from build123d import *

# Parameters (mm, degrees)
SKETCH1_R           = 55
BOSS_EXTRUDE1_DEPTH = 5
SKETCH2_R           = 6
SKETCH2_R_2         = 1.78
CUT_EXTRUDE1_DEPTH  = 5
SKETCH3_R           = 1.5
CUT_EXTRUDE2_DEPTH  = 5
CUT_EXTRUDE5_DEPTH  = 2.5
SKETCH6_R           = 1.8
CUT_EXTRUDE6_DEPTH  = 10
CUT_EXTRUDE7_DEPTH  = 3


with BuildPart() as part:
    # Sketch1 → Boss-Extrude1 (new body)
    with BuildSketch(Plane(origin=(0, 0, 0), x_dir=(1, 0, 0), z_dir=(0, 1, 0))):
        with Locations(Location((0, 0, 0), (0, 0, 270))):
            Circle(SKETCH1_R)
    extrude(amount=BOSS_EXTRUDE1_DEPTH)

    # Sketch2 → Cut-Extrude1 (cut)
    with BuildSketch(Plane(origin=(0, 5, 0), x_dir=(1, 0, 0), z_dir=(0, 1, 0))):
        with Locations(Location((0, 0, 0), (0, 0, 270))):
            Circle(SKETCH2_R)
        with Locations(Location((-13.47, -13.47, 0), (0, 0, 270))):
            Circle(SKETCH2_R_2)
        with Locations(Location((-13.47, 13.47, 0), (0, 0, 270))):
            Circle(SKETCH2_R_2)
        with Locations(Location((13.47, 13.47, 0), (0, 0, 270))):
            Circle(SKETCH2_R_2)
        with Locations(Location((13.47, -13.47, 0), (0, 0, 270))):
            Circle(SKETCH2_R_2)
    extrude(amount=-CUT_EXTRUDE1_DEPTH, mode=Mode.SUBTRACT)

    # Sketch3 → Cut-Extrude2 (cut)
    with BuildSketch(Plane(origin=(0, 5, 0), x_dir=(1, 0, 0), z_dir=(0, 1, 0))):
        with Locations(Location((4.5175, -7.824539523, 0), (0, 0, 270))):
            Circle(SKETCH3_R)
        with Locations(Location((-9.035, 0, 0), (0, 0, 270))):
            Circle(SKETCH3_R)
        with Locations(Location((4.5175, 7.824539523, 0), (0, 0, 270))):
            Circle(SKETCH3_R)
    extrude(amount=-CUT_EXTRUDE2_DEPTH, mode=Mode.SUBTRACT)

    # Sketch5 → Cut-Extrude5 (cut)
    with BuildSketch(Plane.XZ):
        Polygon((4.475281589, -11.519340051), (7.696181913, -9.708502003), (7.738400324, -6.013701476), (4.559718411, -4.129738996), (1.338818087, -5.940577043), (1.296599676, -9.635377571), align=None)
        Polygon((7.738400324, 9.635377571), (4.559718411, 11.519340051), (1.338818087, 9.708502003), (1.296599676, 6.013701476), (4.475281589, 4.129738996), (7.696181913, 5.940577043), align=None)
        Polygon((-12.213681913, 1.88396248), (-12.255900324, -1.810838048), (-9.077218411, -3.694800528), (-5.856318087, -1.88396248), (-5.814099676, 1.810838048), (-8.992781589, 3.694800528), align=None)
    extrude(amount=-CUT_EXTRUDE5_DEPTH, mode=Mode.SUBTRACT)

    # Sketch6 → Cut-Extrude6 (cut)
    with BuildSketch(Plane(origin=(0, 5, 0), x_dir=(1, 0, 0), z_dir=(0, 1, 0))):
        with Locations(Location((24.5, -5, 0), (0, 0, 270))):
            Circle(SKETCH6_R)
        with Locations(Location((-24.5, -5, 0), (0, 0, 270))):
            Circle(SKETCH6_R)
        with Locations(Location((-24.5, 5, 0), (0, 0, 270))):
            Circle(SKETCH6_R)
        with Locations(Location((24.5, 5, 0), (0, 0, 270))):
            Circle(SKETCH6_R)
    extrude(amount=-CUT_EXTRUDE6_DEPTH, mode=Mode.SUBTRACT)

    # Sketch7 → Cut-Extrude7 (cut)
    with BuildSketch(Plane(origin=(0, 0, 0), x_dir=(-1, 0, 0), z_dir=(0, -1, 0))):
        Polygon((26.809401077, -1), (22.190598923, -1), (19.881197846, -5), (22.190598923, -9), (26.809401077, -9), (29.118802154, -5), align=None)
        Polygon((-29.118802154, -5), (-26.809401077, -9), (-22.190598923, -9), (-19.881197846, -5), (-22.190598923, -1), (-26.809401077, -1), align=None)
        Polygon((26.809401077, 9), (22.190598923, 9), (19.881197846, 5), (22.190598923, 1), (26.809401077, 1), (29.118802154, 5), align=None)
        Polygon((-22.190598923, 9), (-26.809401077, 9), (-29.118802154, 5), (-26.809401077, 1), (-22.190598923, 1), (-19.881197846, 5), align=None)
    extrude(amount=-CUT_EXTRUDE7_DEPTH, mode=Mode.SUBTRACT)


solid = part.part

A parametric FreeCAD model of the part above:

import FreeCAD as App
import Part
import Sketcher
from FreeCAD import Vector
Q = App.Units.Quantity

doc = App.newDocument("Part")
body = doc.addObject("PartDesign::Body", "Body")

# Sketch on XZ plane
sketch1 = body.newObject("Sketcher::SketchObject", "Sketch")
sketch1.AttachmentSupport = (doc.getObject("XZ_Plane"), [""])
sketch1.MapMode = "FlatFace"
sketch1.addGeometry(Part.Circle(Vector(0, 0, 0), Vector(0, 0, 1), 55), False)
sketch1.addConstraint(Sketcher.Constraint("Coincident", 0, 3, -1, 1))
sketch1.addConstraint(Sketcher.Constraint("Diameter", 0, Q("110 mm")))
pad1 = body.newObject("PartDesign::Pad", "Pad")
pad1.Profile = sketch1
pad1.Length = 5
pad1.Reversed = True

# Sketch on XZ plane
sketch2 = body.newObject("Sketcher::SketchObject", "Sketch001")
sketch2.AttachmentSupport = (doc.getObject("XZ_Plane"), [""])
sketch2.MapMode = "FlatFace"
sketch2.AttachmentOffset = App.Placement(Vector(0, 0, -5), App.Rotation())
sketch2.addGeometry(Part.Circle(Vector(0, 0, 0), Vector(0, 0, 1), 6), False)
sketch2.addGeometry(Part.Circle(Vector(-13.5, 13.5, 0), Vector(0, 0, 1), 1.8), False)
sketch2.addGeometry(Part.Circle(Vector(-13.5, -13.5, 0), Vector(0, 0, 1), 1.8), False)
sketch2.addGeometry(Part.Circle(Vector(13.5, -13.5, 0), Vector(0, 0, 1), 1.8), False)
sketch2.addGeometry(Part.Circle(Vector(13.5, 13.5, 0), Vector(0, 0, 1), 1.8), False)
sketch2.addConstraint(Sketcher.Constraint("Coincident", 0, 3, -1, 1))
sketch2.addConstraint(Sketcher.Constraint("Equal", 1, 2))
sketch2.addConstraint(Sketcher.Constraint("Equal", 2, 3))
sketch2.addConstraint(Sketcher.Constraint("Equal", 3, 4))
sketch2.addConstraint(Sketcher.Constraint("Symmetric", 1, 3, 3, 3, -1, 1))
sketch2.addConstraint(Sketcher.Constraint("Symmetric", 2, 3, 4, 3, -1, 1))
sketch2.addConstraint(Sketcher.Constraint("Symmetric", 2, 3, 3, 3, -2))
sketch2.addConstraint(Sketcher.Constraint("Diameter", 0, Q("12 mm")))
sketch2.addConstraint(Sketcher.Constraint("Diameter", 1, Q("3.56 mm")))
sketch2.addConstraint(Sketcher.Constraint("DistanceX", 1, 3, -1, 1, Q("13.47 mm")))
sketch2.addConstraint(Sketcher.Constraint("DistanceY", -1, 1, 1, 3, Q("13.47 mm")))
pocket1 = body.newObject("PartDesign::Pocket", "Pocket")
pocket1.Profile = sketch2
pocket1.Length = 5
pocket1.Reversed = True

# Sketch on XZ plane
sketch3 = body.newObject("Sketcher::SketchObject", "Sketch002")
sketch3.AttachmentSupport = (doc.getObject("XZ_Plane"), [""])
sketch3.MapMode = "FlatFace"
sketch3.AttachmentOffset = App.Placement(Vector(0, 0, -5), App.Rotation())
sketch3.addGeometry(Part.Circle(Vector(4.5, 7.8, 0), Vector(0, 0, 1), 1.5), False)
sketch3.addGeometry(Part.Circle(Vector(-9, 0, 0), Vector(0, 0, 1), 1.5), False)
sketch3.addGeometry(Part.Circle(Vector(4.5, -7.8, 0), Vector(0, 0, 1), 1.5), False)
sketch3.addConstraint(Sketcher.Constraint("Equal", 0, 1))
sketch3.addConstraint(Sketcher.Constraint("Equal", 1, 2))
sketch3.addConstraint(Sketcher.Constraint("Symmetric", 0, 3, 2, 3, -1))
sketch3.addConstraint(Sketcher.Constraint("PointOnObject", 1, 3, -1))
sketch3.addConstraint(Sketcher.Constraint("Diameter", 0, Q("3 mm")))
sketch3.addConstraint(Sketcher.Constraint("DistanceX", 1, 3, -1, 1, Q("9.035 mm")))
sketch3.addConstraint(Sketcher.Constraint("DistanceX", -1, 1, 0, 3, Q("4.5175 mm")))
sketch3.addConstraint(Sketcher.Constraint("DistanceY", -1, 1, 0, 3, Q("7.82454 mm")))
pocket2 = body.newObject("PartDesign::Pocket", "Pocket001")
pocket2.Profile = sketch3
pocket2.Length = 5
pocket2.Reversed = True

# Sketch on XZ plane
sketch4 = body.newObject("Sketcher::SketchObject", "Sketch003")
sketch4.AttachmentSupport = (doc.getObject("XZ_Plane"), [""])
sketch4.MapMode = "FlatFace"
sketch4.addGeometry(Part.LineSegment(Vector(4.475282, -11.51934, 0), Vector(7.696182, -9.708502, 0)), False)
sketch4.addGeometry(Part.LineSegment(Vector(7.696182, -9.708502, 0), Vector(7.7384, -6.013701, 0)), False)
sketch4.addGeometry(Part.LineSegment(Vector(7.7384, -6.013701, 0), Vector(4.559718, -4.129739, 0)), False)
sketch4.addGeometry(Part.LineSegment(Vector(4.559718, -4.129739, 0), Vector(1.338818, -5.940577, 0)), False)
sketch4.addGeometry(Part.LineSegment(Vector(1.338818, -5.940577, 0), Vector(1.2966, -9.635378, 0)), False)
sketch4.addGeometry(Part.LineSegment(Vector(1.2966, -9.635378, 0), Vector(4.475282, -11.51934, 0)), False)
sketch4.addGeometry(Part.LineSegment(Vector(7.7384, 9.635378, 0), Vector(4.559718, 11.51934, 0)), False)
sketch4.addGeometry(Part.LineSegment(Vector(4.559718, 11.51934, 0), Vector(1.338818, 9.708502, 0)), False)
sketch4.addGeometry(Part.LineSegment(Vector(1.338818, 9.708502, 0), Vector(1.2966, 6.013701, 0)), False)
sketch4.addGeometry(Part.LineSegment(Vector(1.2966, 6.013701, 0), Vector(4.475282, 4.129739, 0)), False)
sketch4.addGeometry(Part.LineSegment(Vector(4.475282, 4.129739, 0), Vector(7.696182, 5.940577, 0)), False)
sketch4.addGeometry(Part.LineSegment(Vector(7.696182, 5.940577, 0), Vector(7.7384, 9.635378, 0)), False)
sketch4.addGeometry(Part.LineSegment(Vector(-12.213682, 1.883962, 0), Vector(-12.2559, -1.810838, 0)), False)
sketch4.addGeometry(Part.LineSegment(Vector(-12.2559, -1.810838, 0), Vector(-9.077218, -3.694801, 0)), False)
sketch4.addGeometry(Part.LineSegment(Vector(-9.077218, -3.694801, 0), Vector(-5.856318, -1.883962, 0)), False)
sketch4.addGeometry(Part.LineSegment(Vector(-5.856318, -1.883962, 0), Vector(-5.8141, 1.810838, 0)), False)
sketch4.addGeometry(Part.LineSegment(Vector(-5.8141, 1.810838, 0), Vector(-8.992782, 3.694801, 0)), False)
sketch4.addGeometry(Part.LineSegment(Vector(-8.992782, 3.694801, 0), Vector(-12.213682, 1.883962, 0)), False)
sketch4.addConstraint(Sketcher.Constraint("Coincident", 0, 2, 1, 1))
sketch4.addConstraint(Sketcher.Constraint("Coincident", 1, 2, 2, 1))
sketch4.addConstraint(Sketcher.Constraint("Coincident", 2, 2, 3, 1))
sketch4.addConstraint(Sketcher.Constraint("Coincident", 3, 2, 4, 1))
sketch4.addConstraint(Sketcher.Constraint("Coincident", 4, 2, 5, 1))
sketch4.addConstraint(Sketcher.Constraint("Coincident", 5, 2, 0, 1))
sketch4.addConstraint(Sketcher.Constraint("Coincident", 6, 2, 7, 1))
sketch4.addConstraint(Sketcher.Constraint("Coincident", 7, 2, 8, 1))
sketch4.addConstraint(Sketcher.Constraint("Coincident", 8, 2, 9, 1))
sketch4.addConstraint(Sketcher.Constraint("Coincident", 9, 2, 10, 1))
sketch4.addConstraint(Sketcher.Constraint("Coincident", 10, 2, 11, 1))
sketch4.addConstraint(Sketcher.Constraint("Coincident", 11, 2, 6, 1))
sketch4.addConstraint(Sketcher.Constraint("Coincident", 12, 2, 13, 1))
sketch4.addConstraint(Sketcher.Constraint("Coincident", 13, 2, 14, 1))
sketch4.addConstraint(Sketcher.Constraint("Coincident", 14, 2, 15, 1))
sketch4.addConstraint(Sketcher.Constraint("Coincident", 15, 2, 16, 1))
sketch4.addConstraint(Sketcher.Constraint("Coincident", 16, 2, 17, 1))
sketch4.addConstraint(Sketcher.Constraint("Coincident", 17, 2, 12, 1))
sketch4.addConstraint(Sketcher.Constraint("Parallel", 0, 3))
sketch4.addConstraint(Sketcher.Constraint("Parallel", 1, 4))
sketch4.addConstraint(Sketcher.Constraint("Parallel", 2, 5))
sketch4.addConstraint(Sketcher.Constraint("Parallel", 5, 6))
sketch4.addConstraint(Sketcher.Constraint("Parallel", 3, 7))
sketch4.addConstraint(Sketcher.Constraint("Parallel", 4, 8))
sketch4.addConstraint(Sketcher.Constraint("Parallel", 6, 9))
sketch4.addConstraint(Sketcher.Constraint("Parallel", 7, 10))
sketch4.addConstraint(Sketcher.Constraint("Parallel", 8, 11))
sketch4.addConstraint(Sketcher.Constraint("Parallel", 11, 12))
sketch4.addConstraint(Sketcher.Constraint("Parallel", 9, 13))
sketch4.addConstraint(Sketcher.Constraint("Parallel", 10, 14))
sketch4.addConstraint(Sketcher.Constraint("Parallel", 12, 15))
sketch4.addConstraint(Sketcher.Constraint("Parallel", 13, 16))
sketch4.addConstraint(Sketcher.Constraint("Parallel", 14, 17))
sketch4.addConstraint(Sketcher.Constraint("Vertical", 2, 2, 6, 2))
sketch4.addConstraint(Sketcher.Constraint("Vertical", 3, 2, 7, 2))
sketch4.addConstraint(Sketcher.Constraint("Vertical", 4, 2, 8, 2))
sketch4.addConstraint(Sketcher.Constraint("Vertical", 5, 2, 9, 2))
sketch4.addConstraint(Sketcher.Constraint("Vertical", 0, 2, 10, 2))
sketch4.addConstraint(Sketcher.Constraint("Equal", 0, 1))
sketch4.addConstraint(Sketcher.Constraint("Equal", 1, 2))
sketch4.addConstraint(Sketcher.Constraint("Equal", 2, 3))
sketch4.addConstraint(Sketcher.Constraint("Equal", 11, 12))
sketch4.addConstraint(Sketcher.Constraint("Equal", 12, 13))
sketch4.addConstraint(Sketcher.Constraint("Equal", 13, 14))
sketch4.addConstraint(Sketcher.Constraint("Equal", 14, 15))
sketch4.addConstraint(Sketcher.Constraint("DistanceX", -1, 1, 1, 2, Q("7.7384 mm")))
sketch4.addConstraint(Sketcher.Constraint("DistanceY", 1, 2, -1, 1, Q("6.013701 mm")))
sketch4.addConstraint(Sketcher.Constraint("DistanceX", -1, 1, 4, 2, Q("1.2966 mm")))
sketch4.addConstraint(Sketcher.Constraint("DistanceY", -1, 1, 8, 2, Q("6.013701 mm")))
sketch4.addConstraint(Sketcher.Constraint("DistanceX", 12, 2, -1, 1, Q("12.2559 mm")))
sketch4.addConstraint(Sketcher.Constraint("DistanceY", 13, 2, -1, 1, Q("3.694801 mm")))
sketch4.addConstraint(Sketcher.Constraint("DistanceY", -1, 1, 16, 2, Q("3.694801 mm")))
sketch4.addConstraint(Sketcher.Constraint("DistanceY", 0, 2, 1, 2, Q("3.694801 mm")))
sketch4.addConstraint(Sketcher.Constraint("DistanceX", 3, 2, 2, 2, Q("3.2209 mm")))
pocket3 = body.newObject("PartDesign::Pocket", "Pocket002")
pocket3.Profile = sketch4
pocket3.Length = 2.5

# Sketch on XZ plane
sketch5 = body.newObject("Sketcher::SketchObject", "Sketch004")
sketch5.AttachmentSupport = (doc.getObject("XZ_Plane"), [""])
sketch5.MapMode = "FlatFace"
sketch5.AttachmentOffset = App.Placement(Vector(0, 0, -5), App.Rotation())
sketch5.addGeometry(Part.Circle(Vector(24.5, 5, 0), Vector(0, 0, 1), 1.8), False)
sketch5.addGeometry(Part.Circle(Vector(-24.5, 5, 0), Vector(0, 0, 1), 1.8), False)
sketch5.addGeometry(Part.Circle(Vector(-24.5, -5, 0), Vector(0, 0, 1), 1.8), False)
sketch5.addGeometry(Part.Circle(Vector(24.5, -5, 0), Vector(0, 0, 1), 1.8), False)
sketch5.addConstraint(Sketcher.Constraint("Equal", 0, 1))
sketch5.addConstraint(Sketcher.Constraint("Equal", 1, 2))
sketch5.addConstraint(Sketcher.Constraint("Equal", 2, 3))
sketch5.addConstraint(Sketcher.Constraint("Symmetric", 0, 3, 2, 3, -1, 1))
sketch5.addConstraint(Sketcher.Constraint("Symmetric", 1, 3, 3, 3, -1, 1))
sketch5.addConstraint(Sketcher.Constraint("Symmetric", 0, 3, 1, 3, -2))
sketch5.addConstraint(Sketcher.Constraint("Diameter", 0, Q("3.6 mm")))
sketch5.addConstraint(Sketcher.Constraint("DistanceY", -1, 1, 0, 3, Q("5 mm")))
sketch5.addConstraint(Sketcher.Constraint("DistanceX", 1, 3, 0, 3, Q("49 mm")))
pocket4 = body.newObject("PartDesign::Pocket", "Pocket003")
pocket4.Profile = sketch5
pocket4.Length = 10
pocket4.Reversed = True

# Sketch on XZ plane
sketch6 = body.newObject("Sketcher::SketchObject", "Sketch005")
sketch6.AttachmentSupport = (doc.getObject("XZ_Plane"), [""])
sketch6.MapMode = "FlatFace"
sketch6.addGeometry(Part.LineSegment(Vector(-26.8, 1, 0), Vector(-22.2, 1, 0)), False)
sketch6.addGeometry(Part.LineSegment(Vector(-22.2, 1, 0), Vector(-19.9, 5, 0)), False)
sketch6.addGeometry(Part.LineSegment(Vector(-19.9, 5, 0), Vector(-22.2, 9, 0)), False)
sketch6.addGeometry(Part.LineSegment(Vector(-22.2, 9, 0), Vector(-26.8, 9, 0)), False)
sketch6.addGeometry(Part.LineSegment(Vector(-26.8, 9, 0), Vector(-29.1, 5, 0)), False)
sketch6.addGeometry(Part.LineSegment(Vector(-29.1, 5, 0), Vector(-26.8, 1, 0)), False)
sketch6.addGeometry(Part.LineSegment(Vector(29.1, 5, 0), Vector(26.8, 9, 0)), False)
sketch6.addGeometry(Part.LineSegment(Vector(26.8, 9, 0), Vector(22.2, 9, 0)), False)
sketch6.addGeometry(Part.LineSegment(Vector(22.2, 9, 0), Vector(19.9, 5, 0)), False)
sketch6.addGeometry(Part.LineSegment(Vector(19.9, 5, 0), Vector(22.2, 1, 0)), False)
sketch6.addGeometry(Part.LineSegment(Vector(22.2, 1, 0), Vector(26.8, 1, 0)), False)
sketch6.addGeometry(Part.LineSegment(Vector(26.8, 1, 0), Vector(29.1, 5, 0)), False)
sketch6.addGeometry(Part.LineSegment(Vector(-26.8, -9, 0), Vector(-22.2, -9, 0)), False)
sketch6.addGeometry(Part.LineSegment(Vector(-22.2, -9, 0), Vector(-19.9, -5, 0)), False)
sketch6.addGeometry(Part.LineSegment(Vector(-19.9, -5, 0), Vector(-22.2, -1, 0)), False)
sketch6.addGeometry(Part.LineSegment(Vector(-22.2, -1, 0), Vector(-26.8, -1, 0)), False)
sketch6.addGeometry(Part.LineSegment(Vector(-26.8, -1, 0), Vector(-29.1, -5, 0)), False)
sketch6.addGeometry(Part.LineSegment(Vector(-29.1, -5, 0), Vector(-26.8, -9, 0)), False)
sketch6.addGeometry(Part.LineSegment(Vector(22.2, -9, 0), Vector(26.8, -9, 0)), False)
sketch6.addGeometry(Part.LineSegment(Vector(26.8, -9, 0), Vector(29.1, -5, 0)), False)
sketch6.addGeometry(Part.LineSegment(Vector(29.1, -5, 0), Vector(26.8, -1, 0)), False)
sketch6.addGeometry(Part.LineSegment(Vector(26.8, -1, 0), Vector(22.2, -1, 0)), False)
sketch6.addGeometry(Part.LineSegment(Vector(22.2, -1, 0), Vector(19.9, -5, 0)), False)
sketch6.addGeometry(Part.LineSegment(Vector(19.9, -5, 0), Vector(22.2, -9, 0)), False)
sketch6.addConstraint(Sketcher.Constraint("Coincident", 0, 2, 1, 1))
sketch6.addConstraint(Sketcher.Constraint("Coincident", 1, 2, 2, 1))
sketch6.addConstraint(Sketcher.Constraint("Coincident", 2, 2, 3, 1))
sketch6.addConstraint(Sketcher.Constraint("Coincident", 3, 2, 4, 1))
sketch6.addConstraint(Sketcher.Constraint("Coincident", 4, 2, 5, 1))
sketch6.addConstraint(Sketcher.Constraint("Coincident", 5, 2, 0, 1))
sketch6.addConstraint(Sketcher.Constraint("Coincident", 6, 2, 7, 1))
sketch6.addConstraint(Sketcher.Constraint("Coincident", 7, 2, 8, 1))
sketch6.addConstraint(Sketcher.Constraint("Coincident", 8, 2, 9, 1))
sketch6.addConstraint(Sketcher.Constraint("Coincident", 9, 2, 10, 1))
sketch6.addConstraint(Sketcher.Constraint("Coincident", 10, 2, 11, 1))
sketch6.addConstraint(Sketcher.Constraint("Coincident", 11, 2, 6, 1))
sketch6.addConstraint(Sketcher.Constraint("Coincident", 12, 2, 13, 1))
sketch6.addConstraint(Sketcher.Constraint("Coincident", 13, 2, 14, 1))
sketch6.addConstraint(Sketcher.Constraint("Coincident", 14, 2, 15, 1))
sketch6.addConstraint(Sketcher.Constraint("Coincident", 15, 2, 16, 1))
sketch6.addConstraint(Sketcher.Constraint("Coincident", 16, 2, 17, 1))
sketch6.addConstraint(Sketcher.Constraint("Coincident", 17, 2, 12, 1))
sketch6.addConstraint(Sketcher.Constraint("Coincident", 18, 2, 19, 1))
sketch6.addConstraint(Sketcher.Constraint("Coincident", 19, 2, 20, 1))
sketch6.addConstraint(Sketcher.Constraint("Coincident", 20, 2, 21, 1))
sketch6.addConstraint(Sketcher.Constraint("Coincident", 21, 2, 22, 1))
sketch6.addConstraint(Sketcher.Constraint("Coincident", 22, 2, 23, 1))
sketch6.addConstraint(Sketcher.Constraint("Coincident", 23, 2, 18, 1))
sketch6.addConstraint(Sketcher.Constraint("Horizontal", 0))
sketch6.addConstraint(Sketcher.Constraint("Horizontal", 3))
sketch6.addConstraint(Sketcher.Constraint("Horizontal", 7))
sketch6.addConstraint(Sketcher.Constraint("Horizontal", 10))
sketch6.addConstraint(Sketcher.Constraint("Horizontal", 12))
sketch6.addConstraint(Sketcher.Constraint("Horizontal", 15))
sketch6.addConstraint(Sketcher.Constraint("Horizontal", 18))
sketch6.addConstraint(Sketcher.Constraint("Horizontal", 21))
sketch6.addConstraint(Sketcher.Constraint("Symmetric", 7, 2, 12, 2, -1, 1))
sketch6.addConstraint(Sketcher.Constraint("Symmetric", 8, 2, 13, 2, -1, 1))
sketch6.addConstraint(Sketcher.Constraint("Symmetric", 9, 2, 14, 2, -1, 1))
sketch6.addConstraint(Sketcher.Constraint("Symmetric", 11, 2, 16, 2, -1, 1))
sketch6.addConstraint(Sketcher.Constraint("Symmetric", 3, 2, 18, 2, -1, 1))
sketch6.addConstraint(Sketcher.Constraint("Symmetric", 4, 2, 19, 2, -1, 1))
sketch6.addConstraint(Sketcher.Constraint("Symmetric", 5, 2, 20, 2, -1, 1))
sketch6.addConstraint(Sketcher.Constraint("Symmetric", 1, 2, 22, 2, -1, 1))
sketch6.addConstraint(Sketcher.Constraint("Symmetric", 3, 2, 6, 2, -2))
sketch6.addConstraint(Sketcher.Constraint("Symmetric", 1, 2, 8, 2, -2))
sketch6.addConstraint(Sketcher.Constraint("Symmetric", 0, 2, 9, 2, -2))
sketch6.addConstraint(Sketcher.Constraint("Symmetric", 4, 2, 11, 2, -2))
sketch6.addConstraint(Sketcher.Constraint("Parallel", 1, 4))
sketch6.addConstraint(Sketcher.Constraint("Parallel", 2, 5))
sketch6.addConstraint(Sketcher.Constraint("Parallel", 5, 6))
sketch6.addConstraint(Sketcher.Constraint("Parallel", 4, 8))
sketch6.addConstraint(Sketcher.Constraint("Parallel", 8, 11))
sketch6.addConstraint(Sketcher.Constraint("Parallel", 13, 16))
sketch6.addConstraint(Sketcher.Constraint("Parallel", 14, 17))
sketch6.addConstraint(Sketcher.Constraint("Parallel", 19, 22))
sketch6.addConstraint(Sketcher.Constraint("Parallel", 20, 23))
sketch6.addConstraint(Sketcher.Constraint("Horizontal", 1, 2, 4, 2))
sketch6.addConstraint(Sketcher.Constraint("Vertical", 0, 2, 2, 2))
sketch6.addConstraint(Sketcher.Constraint("Angle", 1, Q("60 deg")))
sketch6.addConstraint(Sketcher.Constraint("DistanceY", -1, 1, 0, 2, Q("1 mm")))
sketch6.addConstraint(Sketcher.Constraint("DistanceY", -1, 1, 1, 2, Q("5 mm")))
sketch6.addConstraint(Sketcher.Constraint("DistanceX", 2, 2, 6, 2, Q("49 mm")))
sketch6.addConstraint(Sketcher.Constraint("DistanceX", 0, 2, -1, 1, Q("22.190599 mm")))
pocket5 = body.newObject("PartDesign::Pocket", "Pocket004")
pocket5.Profile = sketch6
pocket5.Length = 3

doc.recompute()
